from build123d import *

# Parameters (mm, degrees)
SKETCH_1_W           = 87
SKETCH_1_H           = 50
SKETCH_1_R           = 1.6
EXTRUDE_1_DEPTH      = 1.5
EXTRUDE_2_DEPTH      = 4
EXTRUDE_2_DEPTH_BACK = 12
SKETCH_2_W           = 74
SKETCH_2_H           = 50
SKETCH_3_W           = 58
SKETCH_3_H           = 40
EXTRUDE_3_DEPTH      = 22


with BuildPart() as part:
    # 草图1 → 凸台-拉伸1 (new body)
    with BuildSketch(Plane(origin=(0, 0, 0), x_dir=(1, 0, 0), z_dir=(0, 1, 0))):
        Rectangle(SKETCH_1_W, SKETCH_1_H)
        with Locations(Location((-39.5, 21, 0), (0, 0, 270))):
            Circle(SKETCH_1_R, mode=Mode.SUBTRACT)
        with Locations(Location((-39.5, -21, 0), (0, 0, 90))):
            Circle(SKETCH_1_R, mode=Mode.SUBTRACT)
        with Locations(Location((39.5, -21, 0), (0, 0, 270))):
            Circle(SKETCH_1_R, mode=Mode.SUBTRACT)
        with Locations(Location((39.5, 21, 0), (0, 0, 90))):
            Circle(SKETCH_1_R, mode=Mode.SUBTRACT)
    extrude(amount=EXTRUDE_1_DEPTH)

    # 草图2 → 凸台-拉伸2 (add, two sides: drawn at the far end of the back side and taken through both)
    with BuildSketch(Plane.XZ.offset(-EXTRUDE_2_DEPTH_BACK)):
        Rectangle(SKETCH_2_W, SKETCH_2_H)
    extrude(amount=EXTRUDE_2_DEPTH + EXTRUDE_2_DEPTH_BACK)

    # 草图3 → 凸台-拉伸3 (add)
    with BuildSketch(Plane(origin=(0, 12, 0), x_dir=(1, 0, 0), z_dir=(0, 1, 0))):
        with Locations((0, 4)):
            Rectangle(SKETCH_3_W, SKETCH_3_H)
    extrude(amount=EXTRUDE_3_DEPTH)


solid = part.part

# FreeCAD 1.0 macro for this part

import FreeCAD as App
import Part
import Sketcher

V = App.Vector
Q = App.Units.Quantity


def add_polygon(sketch, points):
    """Adds a closed chain of lines whose ends are joined by coincident constraints."""
    first, n = sketch.GeometryCount, len(points)
    for a, b in zip(points, points[1:] + points[:1]):
        sketch.addGeometry(Part.LineSegment(App.Vector(*a, 0), App.Vector(*b, 0)), False)
    for i in range(n):
        sketch.addConstraint(Sketcher.Constraint("Coincident", first + i, 2, first + (i + 1) % n, 1))

doc = App.newDocument("Part")
body = doc.addObject("PartDesign::Body", "Body")

sketch1 = doc.addObject("Sketcher::SketchObject", "Sketch")
body.addObject(sketch1)
sketch1.AttachmentSupport = (doc.XZ_Plane, [""])
sketch1.MapMode = "FlatFace"
add_polygon(sketch1, [(-43.5, -25), (-43.5, 25), (43.5, 25), (43.5, -25)])
sketch1.addGeometry(Part.Circle(V(-39.5, 21, 0), V(0, 0, 1), 1.6), False)
sketch1.addGeometry(Part.Circle(V(39.5, 21, 0), V(0, 0, 1), 1.6), False)
sketch1.addGeometry(Part.Circle(V(-39.5, -21, 0), V(0, 0, 1), 1.6), False)
sketch1.addGeometry(Part.Circle(V(39.5, -21, 0), V(0, 0, 1), 1.6), False)
sketch1.addConstraint(Sketcher.Constraint("Vertical", 0))
sketch1.addConstraint(Sketcher.Constraint("Horizontal", 1))
sketch1.addConstraint(Sketcher.Constraint("Vertical", 2))
sketch1.addConstraint(Sketcher.Constraint("Horizontal", 3))
sketch1.addConstraint(Sketcher.Constraint("Equal", 4, 5))
sketch1.addConstraint(Sketcher.Constraint("Equal", 5, 6))
sketch1.addConstraint(Sketcher.Constraint("Equal", 6, 7))
sketch1.addConstraint(Sketcher.Constraint("Symmetric", 5, 3, 6, 3, -1, 1))
sketch1.addConstraint(Sketcher.Constraint("Symmetric", 4, 3, 7, 3, -1, 1))
sketch1.addConstraint(Sketcher.Constraint("Symmetric", 0, 2, 2, 2, -1, 1))
sketch1.addConstraint(Sketcher.Constraint("Symmetric", 4, 3, 5, 3, -2))
sketch1.addConstraint(Sketcher.Constraint("Diameter", 4, Q("3.2 mm")))
sketch1.addConstraint(Sketcher.Constraint("DistanceX", 1, 1, 1, 2, Q("87 mm")))
sketch1.addConstraint(Sketcher.Constraint("DistanceY", 0, 1, 0, 2, Q("50 mm")))
sketch1.addConstraint(Sketcher.Constraint("DistanceY", -1, 1, 4, 3, Q("21 mm")))
sketch1.addConstraint(Sketcher.Constraint("DistanceX", 4, 3, 5, 3, Q("79 mm")))
pad1 = doc.addObject("PartDesign::Pad", "Pad")
body.addObject(pad1)
pad1.Profile = sketch1
pad1.Length = 1.5
pad1.Reversed = True

sketch2 = doc.addObject("Sketcher::SketchObject", "Sketch001")
body.addObject(sketch2)
sketch2.AttachmentSupport = (doc.XZ_Plane, [""])
sketch2.MapMode = "FlatFace"
add_polygon(sketch2, [(-37, 25), (-37, -25), (37, -25), (37, 25)])
sketch2.addConstraint(Sketcher.Constraint("Vertical", 0))
sketch2.addConstraint(Sketcher.Constraint("Horizontal", 1))
sketch2.addConstraint(Sketcher.Constraint("Vertical", 2))
sketch2.addConstraint(Sketcher.Constraint("Horizontal", 3))
sketch2.addConstraint(Sketcher.Constraint("Symmetric", 0, 2, 2, 2, -1, 1))
sketch2.addConstraint(Sketcher.Constraint("DistanceX", 1, 1, 1, 2, Q("74 mm")))
sketch2.addConstraint(Sketcher.Constraint("DistanceY", 0, 2, 0, 1, Q("50 mm")))
pad2 = doc.addObject("PartDesign::Pad", "Pad001")
body.addObject(pad2)
pad2.Profile = sketch2
pad2.Type = "TwoLengths"
pad2.Length = 4
pad2.Length2 = 12

sketch3 = doc.addObject("Sketcher::SketchObject", "Sketch002")
body.addObject(sketch3)
sketch3.AttachmentSupport = (doc.XZ_Plane, [""])
sketch3.MapMode = "FlatFace"
sketch3.AttachmentOffset = App.Placement(V(0, 0, -12), App.Rotation())
add_polygon(sketch3, [(-29, -24), (-29, 16), (29, 16), (29, -24)])
sketch3.addConstraint(Sketcher.Constraint("Vertical", 0))
sketch3.addConstraint(Sketcher.Constraint("Horizontal", 1))
sketch3.addConstraint(Sketcher.Constraint("Vertical", 2))
sketch3.addConstraint(Sketcher.Constraint("Horizontal", 3))
sketch3.addConstraint(Sketcher.Constraint("DistanceX", 1, 1, 1, 2, Q("58 mm")))
sketch3.addConstraint(Sketcher.Constraint("DistanceY", 0, 1, 0, 2, Q("40 mm")))
sketch3.addConstraint(Sketcher.Constraint("DistanceX", 0, 2, -1, 1, Q("29 mm")))
sketch3.addConstraint(Sketcher.Constraint("DistanceY", -1, 1, 0, 2, Q("16 mm")))
pad3 = doc.addObject("PartDesign::Pad", "Pad002")
body.addObject(pad3)
pad3.Profile = sketch3
pad3.Length = 22
pad3.Reversed = True

doc.recompute()
